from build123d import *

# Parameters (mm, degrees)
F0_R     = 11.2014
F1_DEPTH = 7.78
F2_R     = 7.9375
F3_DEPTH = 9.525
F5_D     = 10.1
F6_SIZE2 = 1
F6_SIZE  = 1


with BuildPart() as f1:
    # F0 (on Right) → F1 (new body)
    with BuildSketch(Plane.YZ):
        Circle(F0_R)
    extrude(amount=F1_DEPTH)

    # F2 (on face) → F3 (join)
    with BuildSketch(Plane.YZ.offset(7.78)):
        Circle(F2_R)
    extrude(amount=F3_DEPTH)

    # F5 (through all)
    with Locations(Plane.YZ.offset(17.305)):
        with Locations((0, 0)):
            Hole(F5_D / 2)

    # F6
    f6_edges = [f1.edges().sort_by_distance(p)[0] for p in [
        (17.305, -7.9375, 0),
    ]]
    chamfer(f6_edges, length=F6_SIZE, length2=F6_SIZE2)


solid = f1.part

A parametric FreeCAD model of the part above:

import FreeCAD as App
import Part
import Sketcher
from FreeCAD import Vector
Q = App.Units.Quantity


def edges_at(feature, points):
    """Names of the edges that pass closest to the given points."""
    edges = feature.Shape.Edges
    near = lambda p: min(range(len(edges)), key=lambda i: edges[i].distToShape(Part.Vertex(*p))[0])
    return sorted({f"Edge{near(p) + 1}" for p in points})

doc = App.newDocument("Part")
params = doc.addObject("Spreadsheet::Sheet", "Params")
for row, (alias, value) in enumerate([
    ("sketch1_diameter", "0.882 in"),
    ("pad1_length", "7.78 mm"),
    ("sketch2_diameter", "0.625 in"),
    ("pad2_length", "0.375 in"),
    ("hole_diameter", "10.1 mm"),
    ("chamfer_size", "1 mm"),
    ("chamfer_size2", "1 mm"),
], start=1):
    params.set(f"A{row}", alias)
    params.set(f"B{row}", "=" + value)
    params.setAlias(f"B{row}", alias)

body = doc.addObject("PartDesign::Body", "Body")

# Sketch on YZ plane
sketch1 = body.newObject("Sketcher::SketchObject", "Sketch")
sketch1.AttachmentSupport = (doc.getObject("YZ_Plane"), [""])
sketch1.MapMode = "FlatFace"
sketch1.addGeometry(Part.Circle(Vector(0, 0, 0), Vector(0, 0, 1), 11), False)
sketch1.addConstraint([
    Sketcher.Constraint("Coincident", 0, 3, -1, 1),
    Sketcher.Constraint("Diameter", 0, Q("0.882 in")),
])
sketch1.setExpression("Constraints[1]", "Params.sketch1_diameter")
pad1 = body.newObject("PartDesign::Pad", "Pad")
pad1.Profile = sketch1
pad1.setExpression("Length", "Params.pad1_length")

# Sketch on YZ plane
sketch2 = body.newObject("Sketcher::SketchObject", "Sketch001")
sketch2.AttachmentSupport = (doc.getObject("YZ_Plane"), [""])
sketch2.MapMode = "FlatFace"
sketch2.AttachmentOffset = App.Placement(Vector(0, 0, 7.78), App.Rotation())
sketch2.addGeometry(Part.Circle(Vector(0, 0, 0), Vector(0, 0, 1), 8), False)
sketch2.addConstraint([
    Sketcher.Constraint("Coincident", 0, 3, -1, 1),
    Sketcher.Constraint("Diameter", 0, Q("0.625 in")),
])
sketch2.setExpression("Constraints[1]", "Params.sketch2_diameter")
pad2 = body.newObject("PartDesign::Pad", "Pad001")
pad2.Profile = sketch2
pad2.setExpression("Length", "Params.pad2_length")

# Sketch on YZ plane
sketch3 = body.newObject("Sketcher::SketchObject", "Sketch002")
sketch3.AttachmentSupport = (doc.getObject("YZ_Plane"), [""])
sketch3.MapMode = "FlatFace"
sketch3.AttachmentOffset = App.Placement(Vector(0, 0, 17.305), App.Rotation())
sketch3.addGeometry(Part.Circle(Vector(0, 0, 0), Vector(0, 0, 1), 5), False)
sketch3.addConstraint([
    Sketcher.Constraint("Coincident", 0, 3, -1, 1),
    Sketcher.Constraint("Diameter", 0, Q("10.1 mm")),
])
doc.recompute()
hole = body.newObject("PartDesign::Hole", "Hole")
hole.Profile = sketch3
hole.ThreadType = "None"
hole.setExpression("Diameter", "Params.hole_diameter")
hole.DepthType = "ThroughAll"
doc.recompute()

chamfer = body.newObject("PartDesign::Chamfer", "Chamfer")
chamfer.Base = (hole, edges_at(hole, [(17.305, -7.938, 0)]))
chamfer.ChamferType = "Two distances"
chamfer.setExpression("Size", "Params.chamfer_size")
chamfer.setExpression("Size2", "Params.chamfer_size2")

doc.recompute()
